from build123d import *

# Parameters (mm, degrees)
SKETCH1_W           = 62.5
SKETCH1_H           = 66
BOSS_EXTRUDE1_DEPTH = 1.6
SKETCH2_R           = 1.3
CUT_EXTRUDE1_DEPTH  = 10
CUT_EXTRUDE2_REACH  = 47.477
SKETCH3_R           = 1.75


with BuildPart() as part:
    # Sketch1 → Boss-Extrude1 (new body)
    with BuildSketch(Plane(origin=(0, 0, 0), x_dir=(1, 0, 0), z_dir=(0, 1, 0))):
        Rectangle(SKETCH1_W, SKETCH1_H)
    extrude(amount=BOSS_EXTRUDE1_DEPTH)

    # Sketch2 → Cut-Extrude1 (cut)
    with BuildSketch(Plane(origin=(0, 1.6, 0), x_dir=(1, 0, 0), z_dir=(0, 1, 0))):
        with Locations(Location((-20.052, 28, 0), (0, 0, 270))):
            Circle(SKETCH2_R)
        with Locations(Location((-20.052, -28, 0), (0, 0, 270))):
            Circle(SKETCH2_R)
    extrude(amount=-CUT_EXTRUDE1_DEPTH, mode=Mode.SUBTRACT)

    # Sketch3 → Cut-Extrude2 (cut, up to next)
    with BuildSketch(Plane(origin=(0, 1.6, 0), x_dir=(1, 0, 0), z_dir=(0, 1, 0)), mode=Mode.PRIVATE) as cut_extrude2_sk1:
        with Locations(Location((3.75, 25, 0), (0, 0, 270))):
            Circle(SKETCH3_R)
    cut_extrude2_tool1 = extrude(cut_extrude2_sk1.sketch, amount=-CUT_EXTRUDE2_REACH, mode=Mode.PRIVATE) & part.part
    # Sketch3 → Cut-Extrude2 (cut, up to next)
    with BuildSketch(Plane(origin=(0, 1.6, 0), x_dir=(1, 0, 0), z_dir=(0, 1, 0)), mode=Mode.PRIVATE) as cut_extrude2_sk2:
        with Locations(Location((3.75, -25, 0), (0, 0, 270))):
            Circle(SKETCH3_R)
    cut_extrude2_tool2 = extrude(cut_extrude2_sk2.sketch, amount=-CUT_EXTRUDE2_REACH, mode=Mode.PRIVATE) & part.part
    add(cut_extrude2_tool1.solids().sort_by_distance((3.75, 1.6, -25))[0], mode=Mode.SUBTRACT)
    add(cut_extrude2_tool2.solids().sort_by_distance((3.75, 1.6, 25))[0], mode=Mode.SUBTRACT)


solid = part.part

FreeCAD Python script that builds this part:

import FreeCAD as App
import Part
import Sketcher
Q = App.Units.Quantity


def add_polygon(sketch, points):
    """Adds a closed chain of lines whose ends are joined by coincident constraints."""
    first, n = sketch.GeometryCount, len(points)
    for a, b in zip(points, points[1:] + points[:1]):
        sketch.addGeometry(Part.LineSegment(App.Vector(*a, 0), App.Vector(*b, 0)), False)
    for i in range(n):
        sketch.addConstraint(Sketcher.Constraint("Coincident", first + i, 2, first + (i + 1) % n, 1))

doc = App.newDocument("Part")
params = doc.addObject("Spreadsheet::Sheet", "Params")
for row, (alias, value) in enumerate([
    ("sketch1_height", "66 mm"),
    ("sketch1_width", "62.5 mm"),
    ("pad1_length", "1.6 mm"),
    ("sketch2_diameter", "2.6 mm"),
    ("pocket1_length", "10 mm"),
    ("sketch3_diameter", "3.5 mm"),
    ("sketch4_diameter", "3.5 mm"),
], start=1):
    params.set(f"A{row}", alias)
    params.set(f"B{row}", "=" + value)
    params.setAlias(f"B{row}", alias)

body = doc.addObject("PartDesign::Body", "Body")

# Sketch on XZ plane
sketch1 = doc.addObject("Sketcher::SketchObject", "Sketch")
body.addObject(sketch1)
sketch1.AttachmentSupport = (doc.XZ_Plane, [""])
sketch1.MapMode = "FlatFace"
add_polygon(sketch1, [(-31, -33), (-31, 33), (31, 33), (31, -33)])  # lines 0-3
sketch1.addConstraint(Sketcher.Constraint("Vertical", 0))
sketch1.addConstraint(Sketcher.Constraint("Horizontal", 1))
sketch1.addConstraint(Sketcher.Constraint("Vertical", 2))
sketch1.addConstraint(Sketcher.Constraint("Horizontal", 3))
sketch1.addConstraint(Sketcher.Constraint("Symmetric", 0, 2, 2, 2, -1, 1))
sketch1.addConstraint(Sketcher.Constraint("DistanceY", 0, 1, 0, 2, Q("66 mm")))
sketch1.addConstraint(Sketcher.Constraint("DistanceX", 1, 1, 1, 2, Q("62.5 mm")))
sketch1.setExpression("Constraints[9]", "Params.sketch1_height")
sketch1.setExpression("Constraints[10]", "Params.sketch1_width")
pad1 = doc.addObject("PartDesign::Pad", "Pad")
body.addObject(pad1)
pad1.Profile = sketch1
pad1.setExpression("Length", "Params.pad1_length")
pad1.Reversed = True

# Sketch on XZ plane
sketch2 = doc.addObject("Sketcher::SketchObject", "Sketch001")
body.addObject(sketch2)
sketch2.AttachmentSupport = (doc.XZ_Plane, [""])
sketch2.MapMode = "FlatFace"
sketch2.AttachmentOffset = App.Placement(App.Vector(0, 0, -1.6), App.Rotation())
sketch2.addGeometry(Part.Circle(App.Vector(-20.1, -28, 0), App.Vector(0, 0, 1), 1.3), False)
sketch2.addGeometry(Part.Circle(App.Vector(-20.1, 28, 0), App.Vector(0, 0, 1), 1.3), False)
sketch2.addConstraint(Sketcher.Constraint("Equal", 0, 1))
sketch2.addConstraint(Sketcher.Constraint("Symmetric", 0, 3, 1, 3, -1))
sketch2.addConstraint(Sketcher.Constraint("Diameter", 0, Q("2.6 mm")))
sketch2.addConstraint(Sketcher.Constraint("DistanceY", 0, 3, -1, 1, Q("28 mm")))
sketch2.addConstraint(Sketcher.Constraint("DistanceX", 0, 3, -1, 1, Q("20.052 mm")))
sketch2.setExpression("Constraints[2]", "Params.sketch2_diameter")
pocket1 = doc.addObject("PartDesign::Pocket", "Pocket")
body.addObject(pocket1)
pocket1.Profile = sketch2
pocket1.setExpression("Length", "Params.pocket1_length")
pocket1.Reversed = True

# Sketch on XZ plane
sketch3 = doc.addObject("Sketcher::SketchObject", "Sketch002")
body.addObject(sketch3)
sketch3.AttachmentSupport = (doc.XZ_Plane, [""])
sketch3.MapMode = "FlatFace"
sketch3.AttachmentOffset = App.Placement(App.Vector(0, 0, -1.6), App.Rotation())
sketch3.addGeometry(Part.Circle(App.Vector(3.8, -25, 0), App.Vector(0, 0, 1), 1.8), False)
sketch3.addConstraint(Sketcher.Constraint("Diameter", 0, Q("3.5 mm")))
sketch3.addConstraint(Sketcher.Constraint("DistanceY", 0, 3, -1, 1, Q("25 mm")))
sketch3.addConstraint(Sketcher.Constraint("DistanceX", -1, 1, 0, 3, Q("3.75 mm")))
sketch3.setExpression("Constraints[0]", "Params.sketch3_diameter")
pocket2 = doc.addObject("PartDesign::Pocket", "Pocket001")
body.addObject(pocket2)
pocket2.Profile = sketch3
pocket2.Type = "UpToFirst"
pocket2.Reversed = True

# Sketch on XZ plane
sketch4 = doc.addObject("Sketcher::SketchObject", "Sketch003")
body.addObject(sketch4)
sketch4.AttachmentSupport = (doc.XZ_Plane, [""])
sketch4.MapMode = "FlatFace"
sketch4.AttachmentOffset = App.Placement(App.Vector(0, 0, -1.6), App.Rotation())
sketch4.addGeometry(Part.Circle(App.Vector(3.8, 25, 0), App.Vector(0, 0, 1), 1.8), False)
sketch4.addConstraint(Sketcher.Constraint("Diameter", 0, Q("3.5 mm")))
sketch4.addConstraint(Sketcher.Constraint("DistanceY", -1, 1, 0, 3, Q("25 mm")))
sketch4.addConstraint(Sketcher.Constraint("DistanceX", -1, 1, 0, 3, Q("3.75 mm")))
sketch4.setExpression("Constraints[0]", "Params.sketch4_diameter")
pocket3 = doc.addObject("PartDesign::Pocket", "Pocket002")
body.addObject(pocket3)
pocket3.Profile = sketch4
pocket3.Type = "UpToFirst"
pocket3.Reversed = True

doc.recompute()
